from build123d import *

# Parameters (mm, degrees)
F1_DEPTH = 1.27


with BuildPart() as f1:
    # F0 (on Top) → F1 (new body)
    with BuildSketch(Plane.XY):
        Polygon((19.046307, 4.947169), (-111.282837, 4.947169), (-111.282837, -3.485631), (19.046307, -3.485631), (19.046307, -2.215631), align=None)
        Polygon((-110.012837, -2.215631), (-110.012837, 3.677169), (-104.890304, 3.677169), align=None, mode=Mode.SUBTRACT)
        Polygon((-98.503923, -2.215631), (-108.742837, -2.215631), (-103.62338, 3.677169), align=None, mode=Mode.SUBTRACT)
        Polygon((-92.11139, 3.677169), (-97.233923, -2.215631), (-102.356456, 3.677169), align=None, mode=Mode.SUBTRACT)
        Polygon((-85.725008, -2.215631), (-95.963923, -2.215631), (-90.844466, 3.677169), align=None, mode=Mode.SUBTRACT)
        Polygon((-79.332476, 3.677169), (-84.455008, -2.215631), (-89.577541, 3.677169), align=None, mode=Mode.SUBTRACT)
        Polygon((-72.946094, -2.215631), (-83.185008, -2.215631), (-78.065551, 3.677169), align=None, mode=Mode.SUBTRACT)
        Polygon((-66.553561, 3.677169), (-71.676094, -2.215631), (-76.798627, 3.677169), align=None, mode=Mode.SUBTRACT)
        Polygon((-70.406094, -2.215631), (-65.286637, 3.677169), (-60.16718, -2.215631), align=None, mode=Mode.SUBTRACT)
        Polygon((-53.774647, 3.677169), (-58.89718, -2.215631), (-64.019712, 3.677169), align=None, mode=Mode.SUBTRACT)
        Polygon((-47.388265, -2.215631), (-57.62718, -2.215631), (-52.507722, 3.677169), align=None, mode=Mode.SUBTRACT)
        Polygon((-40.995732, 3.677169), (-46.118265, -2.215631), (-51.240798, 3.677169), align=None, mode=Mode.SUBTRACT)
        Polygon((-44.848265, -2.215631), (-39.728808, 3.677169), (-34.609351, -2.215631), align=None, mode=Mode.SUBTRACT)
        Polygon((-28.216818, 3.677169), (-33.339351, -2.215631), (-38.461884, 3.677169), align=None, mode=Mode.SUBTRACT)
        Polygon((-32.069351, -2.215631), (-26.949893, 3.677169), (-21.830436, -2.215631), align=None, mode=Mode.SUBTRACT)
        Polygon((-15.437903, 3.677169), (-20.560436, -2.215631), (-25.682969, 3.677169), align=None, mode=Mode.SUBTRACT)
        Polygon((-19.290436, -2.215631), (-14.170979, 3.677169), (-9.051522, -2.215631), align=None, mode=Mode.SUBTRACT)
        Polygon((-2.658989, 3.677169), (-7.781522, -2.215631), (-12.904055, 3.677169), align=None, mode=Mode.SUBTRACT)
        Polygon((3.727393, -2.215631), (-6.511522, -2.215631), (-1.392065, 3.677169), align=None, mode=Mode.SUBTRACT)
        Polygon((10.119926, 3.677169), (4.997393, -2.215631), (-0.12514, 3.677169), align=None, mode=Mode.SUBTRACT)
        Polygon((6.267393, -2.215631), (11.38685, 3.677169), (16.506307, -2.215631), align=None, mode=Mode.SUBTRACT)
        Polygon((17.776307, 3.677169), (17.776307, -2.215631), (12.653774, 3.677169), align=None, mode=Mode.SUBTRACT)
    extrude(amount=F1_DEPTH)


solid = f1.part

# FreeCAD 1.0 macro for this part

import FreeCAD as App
import Part
import Sketcher

V = App.Vector
Q = App.Units.Quantity

doc = App.newDocument("Part")
params = doc.addObject("Spreadsheet::Sheet", "Params")
for row, (alias, value) in enumerate([
    ("sketch1_height", "0.332 in"),
    ("sketch1_height2", "0.232 in"),
    ("pad1_length", "0.05 in"),
], start=1):
    params.set(f"A{row}", alias)
    params.set(f"B{row}", "=" + value)
    params.setAlias(f"B{row}", alias)

body = doc.addObject("PartDesign::Body", "Body")

# Sketch on XY plane
sketch1 = body.newObject("Sketcher::SketchObject", "Sketch")
sketch1.AttachmentSupport = (doc.getObject("XY_Plane"), [""])
sketch1.MapMode = "FlatFace"
sketch1.addGeometry(Part.LineSegment(V(19, 5, 0), V(-111, 5, 0)), False)
sketch1.addGeometry(Part.LineSegment(V(-111, 5, 0), V(-111, -3, 0)), False)
sketch1.addGeometry(Part.LineSegment(V(-111, -3, 0), V(19, -3, 0)), False)
sketch1.addGeometry(Part.LineSegment(V(19, -3, 0), V(19, 5, 0)), False)
sketch1.addGeometry(Part.LineSegment(V(-105, 4, 0), V(-110, -2, 0)), False)
sketch1.addGeometry(Part.LineSegment(V(-110, -2, 0), V(-110, 4, 0)), False)
sketch1.addGeometry(Part.LineSegment(V(-110, 4, 0), V(-105, 4, 0)), False)
sketch1.addGeometry(Part.LineSegment(V(-104, 4, 0), V(-99, -2, 0)), False)
sketch1.addGeometry(Part.LineSegment(V(-99, -2, 0), V(-109, -2, 0)), False)
sketch1.addGeometry(Part.LineSegment(V(-109, -2, 0), V(-104, 4, 0)), False)
sketch1.addGeometry(Part.LineSegment(V(-91, 4, 0), V(-86, -2, 0)), False)
sketch1.addGeometry(Part.LineSegment(V(-86, -2, 0), V(-96, -2, 0)), False)
sketch1.addGeometry(Part.LineSegment(V(-96, -2, 0), V(-91, 4, 0)), False)
sketch1.addGeometry(Part.LineSegment(V(-78, 4, 0), V(-73, -2, 0)), False)
sketch1.addGeometry(Part.LineSegment(V(-73, -2, 0), V(-83, -2, 0)), False)
sketch1.addGeometry(Part.LineSegment(V(-83, -2, 0), V(-78, 4, 0)), False)
sketch1.addGeometry(Part.LineSegment(V(-60, -2, 0), V(-70, -2, 0)), False)
sketch1.addGeometry(Part.LineSegment(V(-70, -2, 0), V(-65, 4, 0)), False)
sketch1.addGeometry(Part.LineSegment(V(-65, 4, 0), V(-60, -2, 0)), False)
sketch1.addGeometry(Part.LineSegment(V(-64, 4, 0), V(-54, 4, 0)), False)
sketch1.addGeometry(Part.LineSegment(V(-54, 4, 0), V(-59, -2, 0)), False)
sketch1.addGeometry(Part.LineSegment(V(-59, -2, 0), V(-64, 4, 0)), False)
sketch1.addGeometry(Part.LineSegment(V(-53, 4, 0), V(-47, -2, 0)), False)
sketch1.addGeometry(Part.LineSegment(V(-47, -2, 0), V(-58, -2, 0)), False)
sketch1.addGeometry(Part.LineSegment(V(-58, -2, 0), V(-53, 4, 0)), False)
sketch1.addGeometry(Part.LineSegment(V(-51, 4, 0), V(-41, 4, 0)), False)
sketch1.addGeometry(Part.LineSegment(V(-41, 4, 0), V(-46, -2, 0)), False)
sketch1.addGeometry(Part.LineSegment(V(-46, -2, 0), V(-51, 4, 0)), False)
sketch1.addGeometry(Part.LineSegment(V(-35, -2, 0), V(-45, -2, 0)), False)
sketch1.addGeometry(Part.LineSegment(V(-45, -2, 0), V(-40, 4, 0)), False)
sketch1.addGeometry(Part.LineSegment(V(-40, 4, 0), V(-35, -2, 0)), False)
sketch1.addGeometry(Part.LineSegment(V(-38, 4, 0), V(-28, 4, 0)), False)
sketch1.addGeometry(Part.LineSegment(V(-28, 4, 0), V(-33, -2, 0)), False)
sketch1.addGeometry(Part.LineSegment(V(-33, -2, 0), V(-38, 4, 0)), False)
sketch1.addGeometry(Part.LineSegment(V(-22, -2, 0), V(-32, -2, 0)), False)
sketch1.addGeometry(Part.LineSegment(V(-32, -2, 0), V(-27, 4, 0)), False)
sketch1.addGeometry(Part.LineSegment(V(-27, 4, 0), V(-22, -2, 0)), False)
sketch1.addGeometry(Part.LineSegment(V(-9, -2, 0), V(-19, -2, 0)), False)
sketch1.addGeometry(Part.LineSegment(V(-19, -2, 0), V(-14, 4, 0)), False)
sketch1.addGeometry(Part.LineSegment(V(-14, 4, 0), V(-9, -2, 0)), False)
sketch1.addGeometry(Part.LineSegment(V(-13, 4, 0), V(-3, 4, 0)), False)
sketch1.addGeometry(Part.LineSegment(V(-3, 4, 0), V(-8, -2, 0)), False)
sketch1.addGeometry(Part.LineSegment(V(-8, -2, 0), V(-13, 4, 0)), False)
sketch1.addGeometry(Part.LineSegment(V(-1, 4, 0), V(4, -2, 0)), False)
sketch1.addGeometry(Part.LineSegment(V(4, -2, 0), V(-7, -2, 0)), False)
sketch1.addGeometry(Part.LineSegment(V(-7, -2, 0), V(-1, 4, 0)), False)
sketch1.addGeometry(Part.LineSegment(V(0, 4, 0), V(10, 4, 0)), False)
sketch1.addGeometry(Part.LineSegment(V(10, 4, 0), V(5, -2, 0)), False)
sketch1.addGeometry(Part.LineSegment(V(5, -2, 0), V(0, 4, 0)), False)
sketch1.addGeometry(Part.LineSegment(V(13, 4, 0), V(18, 4, 0)), False)
sketch1.addGeometry(Part.LineSegment(V(18, 4, 0), V(18, -2, 0)), False)
sketch1.addGeometry(Part.LineSegment(V(18, -2, 0), V(13, 4, 0)), False)
sketch1.addGeometry(Part.LineSegment(V(-102, 4, 0), V(-92, 4, 0)), False)
sketch1.addGeometry(Part.LineSegment(V(-92, 4, 0), V(-97, -2, 0)), False)
sketch1.addGeometry(Part.LineSegment(V(-97, -2, 0), V(-102, 4, 0)), False)
sketch1.addGeometry(Part.LineSegment(V(-90, 4, 0), V(-79, 4, 0)), False)
sketch1.addGeometry(Part.LineSegment(V(-79, 4, 0), V(-84, -2, 0)), False)
sketch1.addGeometry(Part.LineSegment(V(-84, -2, 0), V(-90, 4, 0)), False)
sketch1.addGeometry(Part.LineSegment(V(-77, 4, 0), V(-67, 4, 0)), False)
sketch1.addGeometry(Part.LineSegment(V(-67, 4, 0), V(-72, -2, 0)), False)
sketch1.addGeometry(Part.LineSegment(V(-72, -2, 0), V(-77, 4, 0)), False)
sketch1.addGeometry(Part.LineSegment(V(-26, 4, 0), V(-15, 4, 0)), False)
sketch1.addGeometry(Part.LineSegment(V(-15, 4, 0), V(-21, -2, 0)), False)
sketch1.addGeometry(Part.LineSegment(V(-21, -2, 0), V(-26, 4, 0)), False)
sketch1.addGeometry(Part.LineSegment(V(17, -2, 0), V(6, -2, 0)), False)
sketch1.addGeometry(Part.LineSegment(V(6, -2, 0), V(11, 4, 0)), False)
sketch1.addGeometry(Part.LineSegment(V(11, 4, 0), V(17, -2, 0)), False)
sketch1.addConstraint(Sketcher.Constraint("Coincident", 0, 2, 1, 1))
sketch1.addConstraint(Sketcher.Constraint("Coincident", 1, 2, 2, 1))
sketch1.addConstraint(Sketcher.Constraint("Coincident", 2, 2, 3, 1))
sketch1.addConstraint(Sketcher.Constraint("Coincident", 3, 2, 0, 1))
sketch1.addConstraint(Sketcher.Constraint("Coincident", 4, 2, 5, 1))
sketch1.addConstraint(Sketcher.Constraint("Coincident", 5, 2, 6, 1))
sketch1.addConstraint(Sketcher.Constraint("Coincident", 6, 2, 4, 1))
sketch1.addConstraint(Sketcher.Constraint("Coincident", 7, 2, 8, 1))
sketch1.addConstraint(Sketcher.Constraint("Coincident", 8, 2, 9, 1))
sketch1.addConstraint(Sketcher.Constraint("Coincident", 9, 2, 7, 1))
sketch1.addConstraint(Sketcher.Constraint("Coincident", 10, 2, 11, 1))
sketch1.addConstraint(Sketcher.Constraint("Coincident", 11, 2, 12, 1))
sketch1.addConstraint(Sketcher.Constraint("Coincident", 12, 2, 10, 1))
sketch1.addConstraint(Sketcher.Constraint("Coincident", 13, 2, 14, 1))
sketch1.addConstraint(Sketcher.Constraint("Coincident", 14, 2, 15, 1))
sketch1.addConstraint(Sketcher.Constraint("Coincident", 15, 2, 13, 1))
sketch1.addConstraint(Sketcher.Constraint("Coincident", 16, 2, 17, 1))
sketch1.addConstraint(Sketcher.Constraint("Coincident", 17, 2, 18, 1))
sketch1.addConstraint(Sketcher.Constraint("Coincident", 18, 2, 16, 1))
sketch1.addConstraint(Sketcher.Constraint("Coincident", 19, 2, 20, 1))
sketch1.addConstraint(Sketcher.Constraint("Coincident", 20, 2, 21, 1))
sketch1.addConstraint(Sketcher.Constraint("Coincident", 21, 2, 19, 1))
sketch1.addConstraint(Sketcher.Constraint("Coincident", 22, 2, 23, 1))
sketch1.addConstraint(Sketcher.Constraint("Coincident", 23, 2, 24, 1))
sketch1.addConstraint(Sketcher.Constraint("Coincident", 24, 2, 22, 1))
sketch1.addConstraint(Sketcher.Constraint("Coincident", 25, 2, 26, 1))
sketch1.addConstraint(Sketcher.Constraint("Coincident", 26, 2, 27, 1))
sketch1.addConstraint(Sketcher.Constraint("Coincident", 27, 2, 25, 1))
sketch1.addConstraint(Sketcher.Constraint("Coincident", 28, 2, 29, 1))
sketch1.addConstraint(Sketcher.Constraint("Coincident", 29, 2, 30, 1))
sketch1.addConstraint(Sketcher.Constraint("Coincident", 30, 2, 28, 1))
sketch1.addConstraint(Sketcher.Constraint("Coincident", 31, 2, 32, 1))
sketch1.addConstraint(Sketcher.Constraint("Coincident", 32, 2, 33, 1))
sketch1.addConstraint(Sketcher.Constraint("Coincident", 33, 2, 31, 1))
sketch1.addConstraint(Sketcher.Constraint("Coincident", 34, 2, 35, 1))
sketch1.addConstraint(Sketcher.Constraint("Coincident", 35, 2, 36, 1))
sketch1.addConstraint(Sketcher.Constraint("Coincident", 36, 2, 34, 1))
sketch1.addConstraint(Sketcher.Constraint("Coincident", 37, 2, 38, 1))
sketch1.addConstraint(Sketcher.Constraint("Coincident", 38, 2, 39, 1))
sketch1.addConstraint(Sketcher.Constraint("Coincident", 39, 2, 37, 1))
sketch1.addConstraint(Sketcher.Constraint("Coincident", 40, 2, 41, 1))
sketch1.addConstraint(Sketcher.Constraint("Coincident", 41, 2, 42, 1))
sketch1.addConstraint(Sketcher.Constraint("Coincident", 42, 2, 40, 1))
sketch1.addConstraint(Sketcher.Constraint("Coincident", 43, 2, 44, 1))
sketch1.addConstraint(Sketcher.Constraint("Coincident", 44, 2, 45, 1))
sketch1.addConstraint(Sketcher.Constraint("Coincident", 45, 2, 43, 1))
sketch1.addConstraint(Sketcher.Constraint("Coincident", 46, 2, 47, 1))
sketch1.addConstraint(Sketcher.Constraint("Coincident", 47, 2, 48, 1))
sketch1.addConstraint(Sketcher.Constraint("Coincident", 48, 2, 46, 1))
sketch1.addConstraint(Sketcher.Constraint("Coincident", 49, 2, 50, 1))
sketch1.addConstraint(Sketcher.Constraint("Coincident", 50, 2, 51, 1))
sketch1.addConstraint(Sketcher.Constraint("Coincident", 51, 2, 49, 1))
sketch1.addConstraint(Sketcher.Constraint("Coincident", 52, 2, 53, 1))
sketch1.addConstraint(Sketcher.Constraint("Coincident", 53, 2, 54, 1))
sketch1.addConstraint(Sketcher.Constraint("Coincident", 54, 2, 52, 1))
sketch1.addConstraint(Sketcher.Constraint("Coincident", 55, 2, 56, 1))
sketch1.addConstraint(Sketcher.Constraint("Coincident", 56, 2, 57, 1))
sketch1.addConstraint(Sketcher.Constraint("Coincident", 57, 2, 55, 1))
sketch1.addConstraint(Sketcher.Constraint("Coincident", 58, 2, 59, 1))
sketch1.addConstraint(Sketcher.Constraint("Coincident", 59, 2, 60, 1))
sketch1.addConstraint(Sketcher.Constraint("Coincident", 60, 2, 58, 1))
sketch1.addConstraint(Sketcher.Constraint("Coincident", 61, 2, 62, 1))
sketch1.addConstraint(Sketcher.Constraint("Coincident", 62, 2, 63, 1))
sketch1.addConstraint(Sketcher.Constraint("Coincident", 63, 2, 61, 1))
sketch1.addConstraint(Sketcher.Constraint("Coincident", 64, 2, 65, 1))
sketch1.addConstraint(Sketcher.Constraint("Coincident", 65, 2, 66, 1))
sketch1.addConstraint(Sketcher.Constraint("Coincident", 66, 2, 64, 1))
sketch1.addConstraint(Sketcher.Constraint("Horizontal", 0))
sketch1.addConstraint(Sketcher.Constraint("Vertical", 1))
sketch1.addConstraint(Sketcher.Constraint("Horizontal", 2))
sketch1.addConstraint(Sketcher.Constraint("Vertical", 3))
sketch1.addConstraint(Sketcher.Constraint("Vertical", 5))
sketch1.addConstraint(Sketcher.Constraint("Horizontal", 6))
sketch1.addConstraint(Sketcher.Constraint("Horizontal", 8))
sketch1.addConstraint(Sketcher.Constraint("Horizontal", 11))
sketch1.addConstraint(Sketcher.Constraint("Horizontal", 14))
sketch1.addConstraint(Sketcher.Constraint("Horizontal", 16))
sketch1.addConstraint(Sketcher.Constraint("Horizontal", 19))
sketch1.addConstraint(Sketcher.Constraint("Horizontal", 23))
sketch1.addConstraint(Sketcher.Constraint("Horizontal", 25))
sketch1.addConstraint(Sketcher.Constraint("Horizontal", 28))
sketch1.addConstraint(Sketcher.Constraint("Horizontal", 31))
sketch1.addConstraint(Sketcher.Constraint("Horizontal", 34))
sketch1.addConstraint(Sketcher.Constraint("Horizontal", 37))
sketch1.addConstraint(Sketcher.Constraint("Horizontal", 40))
sketch1.addConstraint(Sketcher.Constraint("Horizontal", 44))
sketch1.addConstraint(Sketcher.Constraint("Horizontal", 46))
sketch1.addConstraint(Sketcher.Constraint("Horizontal", 49))
sketch1.addConstraint(Sketcher.Constraint("Vertical", 50))
sketch1.addConstraint(Sketcher.Constraint("Horizontal", 52))
sketch1.addConstraint(Sketcher.Constraint("Horizontal", 55))
sketch1.addConstraint(Sketcher.Constraint("Horizontal", 58))
sketch1.addConstraint(Sketcher.Constraint("Horizontal", 61))
sketch1.addConstraint(Sketcher.Constraint("Horizontal", 64))
sketch1.addConstraint(Sketcher.Constraint("Parallel", 7, 10))
sketch1.addConstraint(Sketcher.Constraint("Parallel", 9, 12))
sketch1.addConstraint(Sketcher.Constraint("Parallel", 10, 13))
sketch1.addConstraint(Sketcher.Constraint("Parallel", 12, 15))
sketch1.addConstraint(Sketcher.Constraint("Parallel", 15, 17))
sketch1.addConstraint(Sketcher.Constraint("Parallel", 13, 18))
sketch1.addConstraint(Sketcher.Constraint("Parallel", 4, 20))
sketch1.addConstraint(Sketcher.Constraint("Parallel", 18, 22))
sketch1.addConstraint(Sketcher.Constraint("Parallel", 17, 24))
sketch1.addConstraint(Sketcher.Constraint("Parallel", 20, 26))
sketch1.addConstraint(Sketcher.Constraint("Parallel", 21, 27))
sketch1.addConstraint(Sketcher.Constraint("Parallel", 24, 29))
sketch1.addConstraint(Sketcher.Constraint("Parallel", 22, 30))
sketch1.addConstraint(Sketcher.Constraint("Parallel", 26, 32))
sketch1.addConstraint(Sketcher.Constraint("Parallel", 27, 33))
sketch1.addConstraint(Sketcher.Constraint("Parallel", 29, 35))
sketch1.addConstraint(Sketcher.Constraint("Parallel", 30, 36))
sketch1.addConstraint(Sketcher.Constraint("Parallel", 35, 38))
sketch1.addConstraint(Sketcher.Constraint("Parallel", 36, 39))
sketch1.addConstraint(Sketcher.Constraint("Parallel", 32, 41))
sketch1.addConstraint(Sketcher.Constraint("Parallel", 33, 42))
sketch1.addConstraint(Sketcher.Constraint("Parallel", 39, 43))
sketch1.addConstraint(Sketcher.Constraint("Parallel", 38, 45))
sketch1.addConstraint(Sketcher.Constraint("Parallel", 41, 47))
sketch1.addConstraint(Sketcher.Constraint("Parallel", 42, 48))
sketch1.addConstraint(Sketcher.Constraint("Parallel", 48, 51))
sketch1.addConstraint(Sketcher.Constraint("Parallel", 47, 53))
sketch1.addConstraint(Sketcher.Constraint("Parallel", 51, 54))
sketch1.addConstraint(Sketcher.Constraint("Parallel", 53, 56))
sketch1.addConstraint(Sketcher.Constraint("Parallel", 54, 57))
sketch1.addConstraint(Sketcher.Constraint("Parallel", 56, 59))
sketch1.addConstraint(Sketcher.Constraint("Parallel", 57, 60))
sketch1.addConstraint(Sketcher.Constraint("Parallel", 59, 62))
sketch1.addConstraint(Sketcher.Constraint("Parallel", 60, 63))
sketch1.addConstraint(Sketcher.Constraint("Parallel", 45, 65))
sketch1.addConstraint(Sketcher.Constraint("Parallel", 43, 66))
sketch1.addConstraint(Sketcher.Constraint("Horizontal", 4, 2, 7, 2))
sketch1.addConstraint(Sketcher.Constraint("Horizontal", 6, 2, 9, 2))
sketch1.addConstraint(Sketcher.Constraint("Horizontal", 8, 2, 10, 2))
sketch1.addConstraint(Sketcher.Constraint("Horizontal", 9, 2, 12, 2))
sketch1.addConstraint(Sketcher.Constraint("Horizontal", 11, 2, 13, 2))
sketch1.addConstraint(Sketcher.Constraint("Horizontal", 12, 2, 15, 2))
sketch1.addConstraint(Sketcher.Constraint("Horizontal", 14, 2, 16, 2))
sketch1.addConstraint(Sketcher.Constraint("Horizontal", 15, 2, 17, 2))
sketch1.addConstraint(Sketcher.Constraint("Horizontal", 17, 2, 19, 2))
sketch1.addConstraint(Sketcher.Constraint("Horizontal", 18, 2, 20, 2))
sketch1.addConstraint(Sketcher.Constraint("Horizontal", 20, 2, 22, 2))
sketch1.addConstraint(Sketcher.Constraint("Horizontal", 21, 2, 24, 2))
sketch1.addConstraint(Sketcher.Constraint("Horizontal", 24, 2, 25, 2))
sketch1.addConstraint(Sketcher.Constraint("Horizontal", 23, 2, 26, 2))
sketch1.addConstraint(Sketcher.Constraint("Horizontal", 26, 2, 28, 2))
sketch1.addConstraint(Sketcher.Constraint("Horizontal", 27, 2, 29, 2))
sketch1.addConstraint(Sketcher.Constraint("Horizontal", 29, 2, 31, 2))
sketch1.addConstraint(Sketcher.Constraint("Horizontal", 30, 2, 32, 2))
sketch1.addConstraint(Sketcher.Constraint("Horizontal", 32, 2, 34, 2))
sketch1.addConstraint(Sketcher.Constraint("Horizontal", 33, 2, 35, 2))
sketch1.addConstraint(Sketcher.Constraint("Horizontal", 36, 2, 37, 2))
sketch1.addConstraint(Sketcher.Constraint("Horizontal", 35, 2, 38, 2))
sketch1.addConstraint(Sketcher.Constraint("Horizontal", 38, 2, 40, 2))
sketch1.addConstraint(Sketcher.Constraint("Horizontal", 39, 2, 41, 2))
sketch1.addConstraint(Sketcher.Constraint("Horizontal", 41, 2, 43, 2))
sketch1.addConstraint(Sketcher.Constraint("Horizontal", 42, 2, 45, 2))
sketch1.addConstraint(Sketcher.Constraint("Horizontal", 45, 2, 46, 2))
sketch1.addConstraint(Sketcher.Constraint("Horizontal", 44, 2, 47, 2))
sketch1.addConstraint(Sketcher.Constraint("Horizontal", 48, 2, 49, 2))
sketch1.addConstraint(Sketcher.Constraint("Horizontal", 47, 2, 50, 2))
sketch1.addConstraint(Sketcher.Constraint("Horizontal", 51, 2, 52, 2))
sketch1.addConstraint(Sketcher.Constraint("Horizontal", 50, 2, 53, 2))
sketch1.addConstraint(Sketcher.Constraint("Horizontal", 54, 2, 55, 2))
sketch1.addConstraint(Sketcher.Constraint("Horizontal", 53, 2, 56, 2))
sketch1.addConstraint(Sketcher.Constraint("Horizontal", 57, 2, 58, 2))
sketch1.addConstraint(Sketcher.Constraint("Horizontal", 56, 2, 59, 2))
sketch1.addConstraint(Sketcher.Constraint("Horizontal", 60, 2, 61, 2))
sketch1.addConstraint(Sketcher.Constraint("Horizontal", 59, 2, 62, 2))
sketch1.addConstraint(Sketcher.Constraint("Horizontal", 62, 2, 64, 2))
sketch1.addConstraint(Sketcher.Constraint("Horizontal", 63, 2, 65, 2))
sketch1.addConstraint(Sketcher.Constraint("Equal", 6, 49))
sketch1.addConstraint(Sketcher.Constraint("Equal", 7, 9))
sketch1.addConstraint(Sketcher.Constraint("Angle", 4, Q("-131.000001 deg")))
sketch1.addConstraint(Sketcher.Constraint("DistanceY", 1, 2, 1, 1, Q("0.332 in")))
sketch1.addConstraint(Sketcher.Constraint("DistanceY", 5, 1, 5, 2, Q("0.232 in")))
sketch1.addConstraint(Sketcher.Constraint("Distance", 7, Q("7.806019 mm")))
sketch1.addConstraint(Sketcher.Constraint("DistanceX", 0, 2, 0, 1, Q("130.329144 mm")))
sketch1.addConstraint(Sketcher.Constraint("DistanceY", -1, 1, 0, 2, Q("4.947169 mm")))
sketch1.addConstraint(Sketcher.Constraint("DistanceY", 4, 2, -1, 1, Q("2.215631 mm")))
sketch1.addConstraint(Sketcher.Constraint("DistanceX", 9, 2, -1, 1, Q("103.62338 mm")))
sketch1.addConstraint(Sketcher.Constraint("DistanceX", 10, 2, -1, 1, Q("85.725008 mm")))
sketch1.addConstraint(Sketcher.Constraint("DistanceX", 15, 2, -1, 1, Q("78.065551 mm")))
sketch1.addConstraint(Sketcher.Constraint("DistanceX", 18, 2, -1, 1, Q("60.16718 mm")))
sketch1.addConstraint(Sketcher.Constraint("DistanceX", 20, 2, -1, 1, Q("58.89718 mm")))
sketch1.addConstraint(Sketcher.Constraint("DistanceX", 23, 2, -1, 1, Q("57.62718 mm")))
sketch1.addConstraint(Sketcher.Constraint("DistanceX", 25, 2, -1, 1, Q("40.995732 mm")))
sketch1.addConstraint(Sketcher.Constraint("DistanceX", 30, 2, -1, 1, Q("34.609351 mm")))
sketch1.addConstraint(Sketcher.Constraint("DistanceX", 31, 2, -1, 1, Q("28.216818 mm")))
sketch1.addConstraint(Sketcher.Constraint("DistanceX", 34, 2, -1, 1, Q("32.069351 mm")))
sketch1.addConstraint(Sketcher.Constraint("DistanceX", 38, 2, -1, 1, Q("14.170979 mm")))
sketch1.addConstraint(Sketcher.Constraint("DistanceX", 40, 2, -1, 1, Q("2.658989 mm")))
sketch1.addConstraint(Sketcher.Constraint("DistanceX", 48, 2, -1, 1, Q("0.12514 mm")))
sketch1.addConstraint(Sketcher.Constraint("DistanceX", 52, 2, -1, 1, Q("92.11139 mm")))
sketch1.addConstraint(Sketcher.Constraint("DistanceX", 56, 2, -1, 1, Q("84.455008 mm")))
sketch1.addConstraint(Sketcher.Constraint("DistanceX", 58, 2, -1, 1, Q("66.553561 mm")))
sketch1.addConstraint(Sketcher.Constraint("DistanceX", 63, 2, -1, 1, Q("25.682969 mm")))
sketch1.addConstraint(Sketcher.Constraint("DistanceX", -1, 1, 65, 2, Q("11.38685 mm")))
sketch1.addConstraint(Sketcher.Constraint("DistanceX", 0, 2, -1, 1, Q("111.282837 mm")))
sketch1.addConstraint(Sketcher.Constraint("DistanceX", 4, 2, -1, 1, Q("110.012837 mm")))
sketch1.addConstraint(Sketcher.Constraint("DistanceX", -1, 1, 43, 2, Q("3.727393 mm")))
sketch1.addConstraint(Sketcher.Constraint("DistanceX", -1, 1, 49, 2, Q("17.776307 mm")))
sketch1.setExpression("Constraints[173]", "Params.sketch1_height")
sketch1.setExpression("Constraints[174]", "Params.sketch1_height2")
pad1 = body.newObject("PartDesign::Pad", "Pad")
pad1.Profile = sketch1
pad1.setExpression("Length", "Params.pad1_length")

doc.recompute()
